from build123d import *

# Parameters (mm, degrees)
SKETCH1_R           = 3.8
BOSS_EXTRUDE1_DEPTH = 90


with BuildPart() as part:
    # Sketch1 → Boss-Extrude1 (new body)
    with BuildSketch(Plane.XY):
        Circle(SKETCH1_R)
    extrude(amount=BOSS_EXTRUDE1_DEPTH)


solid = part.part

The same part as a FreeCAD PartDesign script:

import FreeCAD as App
import Part
import Sketcher

V = App.Vector
Q = App.Units.Quantity

doc = App.newDocument("Part")
params = doc.addObject("Spreadsheet::Sheet", "Params")
for row, (alias, value) in enumerate([
    ("sketch1_diameter", "7.6 mm"),
    ("pad1_length", "90 mm"),
], start=1):
    params.set(f"A{row}", alias)
    params.set(f"B{row}", "=" + value)
    params.setAlias(f"B{row}", alias)

body = doc.addObject("PartDesign::Body", "Body")

# Sketch on XY plane
sketch1 = body.newObject("Sketcher::SketchObject", "Sketch")
sketch1.AttachmentSupport = (doc.getObject("XY_Plane"), [""])
sketch1.MapMode = "FlatFace"
sketch1.addGeometry(Part.Circle(V(0, 0, 0), V(0, 0, 1), 3.8), False)
sketch1.addConstraint([
    Sketcher.Constraint("Coincident", 0, 3, -1, 1),
    Sketcher.Constraint("Diameter", 0, Q("7.6 mm")),
])
sketch1.setExpression("Constraints[1]", "Params.sketch1_diameter")
pad1 = body.newObject("PartDesign::Pad", "Pad")
pad1.Profile = sketch1
pad1.setExpression("Length", "Params.pad1_length")

doc.recompute()
